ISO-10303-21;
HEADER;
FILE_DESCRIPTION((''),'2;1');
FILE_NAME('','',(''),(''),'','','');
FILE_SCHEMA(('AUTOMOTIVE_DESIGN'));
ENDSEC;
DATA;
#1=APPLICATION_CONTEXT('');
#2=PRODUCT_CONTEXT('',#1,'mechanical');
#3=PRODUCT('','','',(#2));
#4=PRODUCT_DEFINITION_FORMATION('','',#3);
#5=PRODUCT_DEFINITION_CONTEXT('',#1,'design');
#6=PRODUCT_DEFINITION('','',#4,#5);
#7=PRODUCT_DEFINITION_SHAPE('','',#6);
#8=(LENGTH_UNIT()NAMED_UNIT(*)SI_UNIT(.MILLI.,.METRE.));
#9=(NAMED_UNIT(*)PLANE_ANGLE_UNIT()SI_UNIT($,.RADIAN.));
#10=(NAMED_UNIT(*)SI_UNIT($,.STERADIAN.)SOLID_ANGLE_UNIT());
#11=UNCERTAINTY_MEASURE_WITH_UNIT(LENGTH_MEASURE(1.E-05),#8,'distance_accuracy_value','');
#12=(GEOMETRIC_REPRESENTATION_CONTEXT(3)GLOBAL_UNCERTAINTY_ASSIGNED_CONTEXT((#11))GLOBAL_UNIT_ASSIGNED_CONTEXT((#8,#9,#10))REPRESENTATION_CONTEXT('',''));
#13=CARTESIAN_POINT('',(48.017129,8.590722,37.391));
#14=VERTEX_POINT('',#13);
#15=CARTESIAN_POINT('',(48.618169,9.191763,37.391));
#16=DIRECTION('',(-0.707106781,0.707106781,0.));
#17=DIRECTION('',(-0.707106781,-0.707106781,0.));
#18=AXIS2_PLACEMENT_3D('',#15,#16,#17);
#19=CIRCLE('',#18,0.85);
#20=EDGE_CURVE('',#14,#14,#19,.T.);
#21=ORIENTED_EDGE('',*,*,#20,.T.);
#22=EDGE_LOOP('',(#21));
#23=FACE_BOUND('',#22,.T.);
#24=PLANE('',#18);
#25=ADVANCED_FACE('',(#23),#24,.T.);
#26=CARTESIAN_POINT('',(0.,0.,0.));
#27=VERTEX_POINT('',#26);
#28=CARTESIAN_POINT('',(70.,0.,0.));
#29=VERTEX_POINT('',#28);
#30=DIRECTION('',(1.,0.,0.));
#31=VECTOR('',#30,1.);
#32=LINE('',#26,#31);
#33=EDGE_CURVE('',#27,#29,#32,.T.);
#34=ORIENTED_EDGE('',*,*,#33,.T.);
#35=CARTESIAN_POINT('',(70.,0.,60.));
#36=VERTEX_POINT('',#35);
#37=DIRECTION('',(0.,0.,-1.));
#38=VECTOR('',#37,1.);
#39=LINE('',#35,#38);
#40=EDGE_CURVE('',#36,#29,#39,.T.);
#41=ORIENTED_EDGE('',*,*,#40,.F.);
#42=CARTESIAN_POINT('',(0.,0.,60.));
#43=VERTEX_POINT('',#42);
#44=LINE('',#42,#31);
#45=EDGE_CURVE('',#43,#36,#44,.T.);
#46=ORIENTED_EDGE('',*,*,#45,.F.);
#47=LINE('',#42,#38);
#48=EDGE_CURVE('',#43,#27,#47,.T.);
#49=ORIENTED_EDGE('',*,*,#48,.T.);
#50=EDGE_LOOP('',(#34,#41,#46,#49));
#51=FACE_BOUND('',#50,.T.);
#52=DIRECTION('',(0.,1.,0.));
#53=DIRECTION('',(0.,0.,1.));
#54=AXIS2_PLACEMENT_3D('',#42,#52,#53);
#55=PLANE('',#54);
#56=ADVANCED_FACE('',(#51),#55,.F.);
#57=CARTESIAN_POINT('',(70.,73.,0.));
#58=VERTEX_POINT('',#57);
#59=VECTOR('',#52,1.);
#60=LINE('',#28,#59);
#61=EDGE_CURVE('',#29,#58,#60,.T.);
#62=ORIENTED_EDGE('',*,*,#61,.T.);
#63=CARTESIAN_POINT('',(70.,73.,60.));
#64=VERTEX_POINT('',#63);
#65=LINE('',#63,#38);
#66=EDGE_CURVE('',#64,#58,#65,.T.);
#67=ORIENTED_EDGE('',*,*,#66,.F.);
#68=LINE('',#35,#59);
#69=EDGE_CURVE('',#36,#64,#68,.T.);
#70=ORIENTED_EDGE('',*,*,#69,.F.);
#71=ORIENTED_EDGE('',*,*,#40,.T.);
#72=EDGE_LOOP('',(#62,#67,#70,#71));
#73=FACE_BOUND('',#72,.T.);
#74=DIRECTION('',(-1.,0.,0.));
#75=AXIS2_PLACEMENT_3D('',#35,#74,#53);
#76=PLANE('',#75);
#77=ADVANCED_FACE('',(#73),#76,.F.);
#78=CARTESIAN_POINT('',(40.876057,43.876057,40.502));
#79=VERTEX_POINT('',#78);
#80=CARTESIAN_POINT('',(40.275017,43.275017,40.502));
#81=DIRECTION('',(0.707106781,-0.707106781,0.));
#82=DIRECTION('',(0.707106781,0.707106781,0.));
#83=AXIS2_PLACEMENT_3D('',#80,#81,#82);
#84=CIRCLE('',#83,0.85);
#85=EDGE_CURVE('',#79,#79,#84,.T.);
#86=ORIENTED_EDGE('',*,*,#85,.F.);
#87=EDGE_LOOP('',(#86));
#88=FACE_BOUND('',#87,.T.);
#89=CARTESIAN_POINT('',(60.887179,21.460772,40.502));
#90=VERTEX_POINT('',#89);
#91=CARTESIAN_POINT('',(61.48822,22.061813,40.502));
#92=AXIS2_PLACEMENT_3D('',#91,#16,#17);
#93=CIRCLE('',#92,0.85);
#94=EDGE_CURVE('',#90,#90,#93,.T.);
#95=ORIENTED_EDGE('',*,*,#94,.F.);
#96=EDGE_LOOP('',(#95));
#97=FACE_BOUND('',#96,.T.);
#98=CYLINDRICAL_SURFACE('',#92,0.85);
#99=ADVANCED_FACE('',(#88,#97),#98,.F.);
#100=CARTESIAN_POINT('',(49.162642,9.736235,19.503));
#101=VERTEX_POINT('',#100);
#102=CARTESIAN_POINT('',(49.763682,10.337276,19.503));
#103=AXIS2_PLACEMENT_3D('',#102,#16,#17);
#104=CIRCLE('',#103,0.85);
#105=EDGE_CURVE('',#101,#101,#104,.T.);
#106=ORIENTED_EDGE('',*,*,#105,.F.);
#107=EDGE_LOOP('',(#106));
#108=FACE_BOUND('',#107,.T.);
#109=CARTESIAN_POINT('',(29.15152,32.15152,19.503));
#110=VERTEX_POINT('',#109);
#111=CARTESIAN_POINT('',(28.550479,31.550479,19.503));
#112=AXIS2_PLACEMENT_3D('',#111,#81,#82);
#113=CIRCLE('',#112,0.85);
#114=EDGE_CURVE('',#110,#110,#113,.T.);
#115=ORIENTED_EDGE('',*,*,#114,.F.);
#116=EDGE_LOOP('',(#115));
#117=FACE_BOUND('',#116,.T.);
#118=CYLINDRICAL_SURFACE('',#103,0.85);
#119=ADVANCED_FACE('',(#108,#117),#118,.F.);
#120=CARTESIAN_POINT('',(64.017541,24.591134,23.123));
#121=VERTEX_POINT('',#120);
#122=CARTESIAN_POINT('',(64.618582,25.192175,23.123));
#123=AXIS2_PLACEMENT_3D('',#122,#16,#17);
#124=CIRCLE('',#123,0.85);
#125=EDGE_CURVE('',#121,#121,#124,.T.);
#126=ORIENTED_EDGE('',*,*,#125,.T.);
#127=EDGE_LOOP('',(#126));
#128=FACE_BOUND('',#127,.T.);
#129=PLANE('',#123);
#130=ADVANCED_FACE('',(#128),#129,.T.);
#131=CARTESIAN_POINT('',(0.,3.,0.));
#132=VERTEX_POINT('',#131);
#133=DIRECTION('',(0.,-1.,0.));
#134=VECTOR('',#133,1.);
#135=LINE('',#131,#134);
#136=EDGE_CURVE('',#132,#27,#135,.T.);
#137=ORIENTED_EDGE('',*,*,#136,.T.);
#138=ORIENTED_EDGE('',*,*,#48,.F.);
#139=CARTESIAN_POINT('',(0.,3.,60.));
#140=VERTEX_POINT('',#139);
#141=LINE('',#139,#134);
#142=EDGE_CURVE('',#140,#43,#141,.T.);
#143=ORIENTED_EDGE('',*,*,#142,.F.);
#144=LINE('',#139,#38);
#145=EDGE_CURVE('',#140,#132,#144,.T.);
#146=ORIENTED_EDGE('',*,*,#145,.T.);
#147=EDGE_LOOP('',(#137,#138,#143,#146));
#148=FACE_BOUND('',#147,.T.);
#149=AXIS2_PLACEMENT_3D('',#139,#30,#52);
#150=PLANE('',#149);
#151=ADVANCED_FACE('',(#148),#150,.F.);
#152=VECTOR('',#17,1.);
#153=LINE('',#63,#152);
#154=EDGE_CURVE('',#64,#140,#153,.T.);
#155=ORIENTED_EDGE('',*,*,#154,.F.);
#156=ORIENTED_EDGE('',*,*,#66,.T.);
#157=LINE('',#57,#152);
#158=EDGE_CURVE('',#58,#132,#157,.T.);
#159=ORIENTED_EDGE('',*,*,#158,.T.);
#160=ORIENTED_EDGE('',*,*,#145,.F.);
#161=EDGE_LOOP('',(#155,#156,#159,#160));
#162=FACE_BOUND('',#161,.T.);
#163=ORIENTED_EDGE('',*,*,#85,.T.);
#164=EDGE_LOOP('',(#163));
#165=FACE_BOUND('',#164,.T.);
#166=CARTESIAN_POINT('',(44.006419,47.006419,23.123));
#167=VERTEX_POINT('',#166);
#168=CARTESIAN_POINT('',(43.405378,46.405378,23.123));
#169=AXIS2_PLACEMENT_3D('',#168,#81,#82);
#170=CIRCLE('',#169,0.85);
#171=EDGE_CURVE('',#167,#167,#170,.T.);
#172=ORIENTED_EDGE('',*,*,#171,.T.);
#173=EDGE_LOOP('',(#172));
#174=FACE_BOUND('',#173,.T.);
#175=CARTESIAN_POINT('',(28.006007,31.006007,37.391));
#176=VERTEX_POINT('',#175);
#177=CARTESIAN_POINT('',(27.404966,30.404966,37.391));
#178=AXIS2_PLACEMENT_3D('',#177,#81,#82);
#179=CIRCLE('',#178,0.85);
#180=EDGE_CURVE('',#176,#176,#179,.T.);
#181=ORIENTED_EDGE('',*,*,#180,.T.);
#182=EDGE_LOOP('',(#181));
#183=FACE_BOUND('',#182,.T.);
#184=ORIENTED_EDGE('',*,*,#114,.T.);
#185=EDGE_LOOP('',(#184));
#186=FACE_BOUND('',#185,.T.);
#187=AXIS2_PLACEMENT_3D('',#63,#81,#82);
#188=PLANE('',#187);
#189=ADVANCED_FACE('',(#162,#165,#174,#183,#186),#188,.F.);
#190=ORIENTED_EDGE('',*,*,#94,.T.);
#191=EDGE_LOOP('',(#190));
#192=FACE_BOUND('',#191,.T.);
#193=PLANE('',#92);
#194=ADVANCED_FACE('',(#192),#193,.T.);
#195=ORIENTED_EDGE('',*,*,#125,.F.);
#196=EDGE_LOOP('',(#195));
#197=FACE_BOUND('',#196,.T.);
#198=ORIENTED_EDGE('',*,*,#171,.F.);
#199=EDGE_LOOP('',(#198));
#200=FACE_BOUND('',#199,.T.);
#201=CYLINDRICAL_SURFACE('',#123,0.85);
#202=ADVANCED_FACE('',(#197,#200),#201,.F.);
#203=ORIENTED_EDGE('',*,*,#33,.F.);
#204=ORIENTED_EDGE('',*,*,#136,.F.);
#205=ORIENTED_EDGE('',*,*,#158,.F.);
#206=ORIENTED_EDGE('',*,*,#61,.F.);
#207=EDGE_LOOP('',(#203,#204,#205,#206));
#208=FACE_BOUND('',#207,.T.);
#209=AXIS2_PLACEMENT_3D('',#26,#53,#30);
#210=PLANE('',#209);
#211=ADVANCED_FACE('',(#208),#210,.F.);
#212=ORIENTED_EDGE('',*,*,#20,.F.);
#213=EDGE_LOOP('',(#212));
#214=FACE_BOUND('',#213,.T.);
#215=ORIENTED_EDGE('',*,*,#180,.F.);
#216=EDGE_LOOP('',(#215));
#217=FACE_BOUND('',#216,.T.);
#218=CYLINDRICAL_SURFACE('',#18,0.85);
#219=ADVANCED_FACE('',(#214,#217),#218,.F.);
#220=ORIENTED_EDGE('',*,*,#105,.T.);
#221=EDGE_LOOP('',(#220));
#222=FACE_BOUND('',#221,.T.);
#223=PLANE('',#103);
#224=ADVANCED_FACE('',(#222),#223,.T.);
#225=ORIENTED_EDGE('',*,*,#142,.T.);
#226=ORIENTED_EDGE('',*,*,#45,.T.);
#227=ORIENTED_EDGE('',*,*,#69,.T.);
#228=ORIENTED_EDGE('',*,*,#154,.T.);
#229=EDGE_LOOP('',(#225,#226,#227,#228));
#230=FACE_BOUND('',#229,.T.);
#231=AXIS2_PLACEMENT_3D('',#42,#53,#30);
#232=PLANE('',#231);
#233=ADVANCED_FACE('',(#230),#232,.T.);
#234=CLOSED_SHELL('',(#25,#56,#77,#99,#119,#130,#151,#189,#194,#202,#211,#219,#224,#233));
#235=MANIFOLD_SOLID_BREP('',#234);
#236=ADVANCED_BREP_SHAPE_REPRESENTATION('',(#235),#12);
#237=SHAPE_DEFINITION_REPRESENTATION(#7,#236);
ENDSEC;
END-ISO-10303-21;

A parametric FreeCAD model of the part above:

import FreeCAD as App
import Part
import Sketcher
from FreeCAD import Vector

doc = App.newDocument("Part")
params = doc.addObject("Spreadsheet::Sheet", "Params")
for row, (alias, value) in enumerate([
    ("sketch1_width", "70 mm"),
    ("sketch1_height", "73 mm"),
    ("sketch1_height2", "3 mm"),
    ("pad1_length", "60 mm"),
    ("sketch2_diameter", "1.7 mm"),
    ("pocket1_length", "60 mm"),
], start=1):
    params.set(f"A{row}", alias)
    params.set(f"B{row}", "=" + value)
    params.setAlias(f"B{row}", alias)

body = doc.addObject("PartDesign::Body", "Body")

# Sketch on XY plane
sketch1 = body.newObject("Sketcher::SketchObject", "Sketch")
sketch1.AttachmentSupport = (doc.getObject("XY_Plane"), [""])
sketch1.MapMode = "FlatFace"
sketch1.addGeometry(Part.LineSegment(Vector(0, 0, 0), Vector(70, 0, 0)), False)
sketch1.addGeometry(Part.LineSegment(Vector(70, 0, 0), Vector(70, 73, 0)), False)
sketch1.addGeometry(Part.LineSegment(Vector(70, 73, 0), Vector(0, 3, 0)), False)
sketch1.addGeometry(Part.LineSegment(Vector(0, 3, 0), Vector(0, 0, 0)), False)
sketch1.addConstraint(Sketcher.Constraint("Coincident", 0, 2, 1, 1))
sketch1.addConstraint(Sketcher.Constraint("Coincident", 1, 2, 2, 1))
sketch1.addConstraint(Sketcher.Constraint("Coincident", 2, 2, 3, 1))
sketch1.addConstraint(Sketcher.Constraint("Coincident", 3, 2, 0, 1))
sketch1.addConstraint(Sketcher.Constraint("Horizontal", 0))
sketch1.addConstraint(Sketcher.Constraint("Vertical", 1))
sketch1.addConstraint(Sketcher.Constraint("Vertical", 3))
sketch1.addConstraint(Sketcher.Constraint("Coincident", 3, 2, -1, 1))
sketch1.addConstraint(Sketcher.Constraint("DistanceX", 0, 1, 0, 2, 70.0))
sketch1.addConstraint(Sketcher.Constraint("DistanceY", 1, 1, 1, 2, 73.0))
sketch1.addConstraint(Sketcher.Constraint("DistanceY", 3, 2, 3, 1, 3.0))
sketch1.setExpression("Constraints[8]", "Params.sketch1_width")
sketch1.setExpression("Constraints[9]", "Params.sketch1_height")
sketch1.setExpression("Constraints[10]", "Params.sketch1_height2")
pad1 = body.newObject("PartDesign::Pad", "Pad")
pad1.Profile = sketch1
pad1.setExpression("Length", "Params.pad1_length")

# Sketch on an angled plane
sketch2 = body.newObject("Sketcher::SketchObject", "Sketch001")
sketch2.Placement = App.Placement(Vector(-1.5, 1.5, 0), App.Rotation(Vector(0, 0, 1), Vector(0.707106781, 0.707106781, 0), Vector(-0.707106781, 0.707106781, 0), "ZXY"))
sketch2.addGeometry(Part.Circle(Vector(19.5, 42.5, 0), Vector(0, 0, 1), 0.8), False)
sketch2.addGeometry(Part.Circle(Vector(23.1, 63.5, 0), Vector(0, 0, 1), 0.8), False)
sketch2.addGeometry(Part.Circle(Vector(40.5, 59.1, 0), Vector(0, 0, 1), 0.8), False)
sketch2.addGeometry(Part.Circle(Vector(37.4, 40.9, 0), Vector(0, 0, 1), 0.8), False)
sketch2.addConstraint(Sketcher.Constraint("Equal", 0, 1))
sketch2.addConstraint(Sketcher.Constraint("Equal", 1, 2))
sketch2.addConstraint(Sketcher.Constraint("Equal", 2, 3))
sketch2.addConstraint(Sketcher.Constraint("Diameter", 0, 1.7))
sketch2.addConstraint(Sketcher.Constraint("DistanceX", 0, 3, 1, 3, 3.62))
sketch2.addConstraint(Sketcher.Constraint("DistanceY", 3, 3, 0, 3, 1.62))
sketch2.addConstraint(Sketcher.Constraint("DistanceX", -1, 1, 0, 3, 19.503))
sketch2.addConstraint(Sketcher.Constraint("DistanceX", -1, 1, 2, 3, 40.502))
sketch2.addConstraint(Sketcher.Constraint("DistanceX", -1, 1, 3, 3, 37.391))
sketch2.addConstraint(Sketcher.Constraint("DistanceY", 0, 3, 1, 3, 21.008))
sketch2.addConstraint(Sketcher.Constraint("DistanceY", 2, 3, 1, 3, 4.427))
sketch2.addConstraint(Sketcher.Constraint("DistanceY", -1, 1, 0, 3, 42.497795))
sketch2.setExpression("Constraints[3]", "Params.sketch2_diameter")
pocket1 = body.newObject("PartDesign::Pocket", "Pocket")
pocket1.Profile = sketch2
pocket1.setExpression("Length", "Params.pocket1_length")
pocket1.Midplane = True

doc.recompute()
